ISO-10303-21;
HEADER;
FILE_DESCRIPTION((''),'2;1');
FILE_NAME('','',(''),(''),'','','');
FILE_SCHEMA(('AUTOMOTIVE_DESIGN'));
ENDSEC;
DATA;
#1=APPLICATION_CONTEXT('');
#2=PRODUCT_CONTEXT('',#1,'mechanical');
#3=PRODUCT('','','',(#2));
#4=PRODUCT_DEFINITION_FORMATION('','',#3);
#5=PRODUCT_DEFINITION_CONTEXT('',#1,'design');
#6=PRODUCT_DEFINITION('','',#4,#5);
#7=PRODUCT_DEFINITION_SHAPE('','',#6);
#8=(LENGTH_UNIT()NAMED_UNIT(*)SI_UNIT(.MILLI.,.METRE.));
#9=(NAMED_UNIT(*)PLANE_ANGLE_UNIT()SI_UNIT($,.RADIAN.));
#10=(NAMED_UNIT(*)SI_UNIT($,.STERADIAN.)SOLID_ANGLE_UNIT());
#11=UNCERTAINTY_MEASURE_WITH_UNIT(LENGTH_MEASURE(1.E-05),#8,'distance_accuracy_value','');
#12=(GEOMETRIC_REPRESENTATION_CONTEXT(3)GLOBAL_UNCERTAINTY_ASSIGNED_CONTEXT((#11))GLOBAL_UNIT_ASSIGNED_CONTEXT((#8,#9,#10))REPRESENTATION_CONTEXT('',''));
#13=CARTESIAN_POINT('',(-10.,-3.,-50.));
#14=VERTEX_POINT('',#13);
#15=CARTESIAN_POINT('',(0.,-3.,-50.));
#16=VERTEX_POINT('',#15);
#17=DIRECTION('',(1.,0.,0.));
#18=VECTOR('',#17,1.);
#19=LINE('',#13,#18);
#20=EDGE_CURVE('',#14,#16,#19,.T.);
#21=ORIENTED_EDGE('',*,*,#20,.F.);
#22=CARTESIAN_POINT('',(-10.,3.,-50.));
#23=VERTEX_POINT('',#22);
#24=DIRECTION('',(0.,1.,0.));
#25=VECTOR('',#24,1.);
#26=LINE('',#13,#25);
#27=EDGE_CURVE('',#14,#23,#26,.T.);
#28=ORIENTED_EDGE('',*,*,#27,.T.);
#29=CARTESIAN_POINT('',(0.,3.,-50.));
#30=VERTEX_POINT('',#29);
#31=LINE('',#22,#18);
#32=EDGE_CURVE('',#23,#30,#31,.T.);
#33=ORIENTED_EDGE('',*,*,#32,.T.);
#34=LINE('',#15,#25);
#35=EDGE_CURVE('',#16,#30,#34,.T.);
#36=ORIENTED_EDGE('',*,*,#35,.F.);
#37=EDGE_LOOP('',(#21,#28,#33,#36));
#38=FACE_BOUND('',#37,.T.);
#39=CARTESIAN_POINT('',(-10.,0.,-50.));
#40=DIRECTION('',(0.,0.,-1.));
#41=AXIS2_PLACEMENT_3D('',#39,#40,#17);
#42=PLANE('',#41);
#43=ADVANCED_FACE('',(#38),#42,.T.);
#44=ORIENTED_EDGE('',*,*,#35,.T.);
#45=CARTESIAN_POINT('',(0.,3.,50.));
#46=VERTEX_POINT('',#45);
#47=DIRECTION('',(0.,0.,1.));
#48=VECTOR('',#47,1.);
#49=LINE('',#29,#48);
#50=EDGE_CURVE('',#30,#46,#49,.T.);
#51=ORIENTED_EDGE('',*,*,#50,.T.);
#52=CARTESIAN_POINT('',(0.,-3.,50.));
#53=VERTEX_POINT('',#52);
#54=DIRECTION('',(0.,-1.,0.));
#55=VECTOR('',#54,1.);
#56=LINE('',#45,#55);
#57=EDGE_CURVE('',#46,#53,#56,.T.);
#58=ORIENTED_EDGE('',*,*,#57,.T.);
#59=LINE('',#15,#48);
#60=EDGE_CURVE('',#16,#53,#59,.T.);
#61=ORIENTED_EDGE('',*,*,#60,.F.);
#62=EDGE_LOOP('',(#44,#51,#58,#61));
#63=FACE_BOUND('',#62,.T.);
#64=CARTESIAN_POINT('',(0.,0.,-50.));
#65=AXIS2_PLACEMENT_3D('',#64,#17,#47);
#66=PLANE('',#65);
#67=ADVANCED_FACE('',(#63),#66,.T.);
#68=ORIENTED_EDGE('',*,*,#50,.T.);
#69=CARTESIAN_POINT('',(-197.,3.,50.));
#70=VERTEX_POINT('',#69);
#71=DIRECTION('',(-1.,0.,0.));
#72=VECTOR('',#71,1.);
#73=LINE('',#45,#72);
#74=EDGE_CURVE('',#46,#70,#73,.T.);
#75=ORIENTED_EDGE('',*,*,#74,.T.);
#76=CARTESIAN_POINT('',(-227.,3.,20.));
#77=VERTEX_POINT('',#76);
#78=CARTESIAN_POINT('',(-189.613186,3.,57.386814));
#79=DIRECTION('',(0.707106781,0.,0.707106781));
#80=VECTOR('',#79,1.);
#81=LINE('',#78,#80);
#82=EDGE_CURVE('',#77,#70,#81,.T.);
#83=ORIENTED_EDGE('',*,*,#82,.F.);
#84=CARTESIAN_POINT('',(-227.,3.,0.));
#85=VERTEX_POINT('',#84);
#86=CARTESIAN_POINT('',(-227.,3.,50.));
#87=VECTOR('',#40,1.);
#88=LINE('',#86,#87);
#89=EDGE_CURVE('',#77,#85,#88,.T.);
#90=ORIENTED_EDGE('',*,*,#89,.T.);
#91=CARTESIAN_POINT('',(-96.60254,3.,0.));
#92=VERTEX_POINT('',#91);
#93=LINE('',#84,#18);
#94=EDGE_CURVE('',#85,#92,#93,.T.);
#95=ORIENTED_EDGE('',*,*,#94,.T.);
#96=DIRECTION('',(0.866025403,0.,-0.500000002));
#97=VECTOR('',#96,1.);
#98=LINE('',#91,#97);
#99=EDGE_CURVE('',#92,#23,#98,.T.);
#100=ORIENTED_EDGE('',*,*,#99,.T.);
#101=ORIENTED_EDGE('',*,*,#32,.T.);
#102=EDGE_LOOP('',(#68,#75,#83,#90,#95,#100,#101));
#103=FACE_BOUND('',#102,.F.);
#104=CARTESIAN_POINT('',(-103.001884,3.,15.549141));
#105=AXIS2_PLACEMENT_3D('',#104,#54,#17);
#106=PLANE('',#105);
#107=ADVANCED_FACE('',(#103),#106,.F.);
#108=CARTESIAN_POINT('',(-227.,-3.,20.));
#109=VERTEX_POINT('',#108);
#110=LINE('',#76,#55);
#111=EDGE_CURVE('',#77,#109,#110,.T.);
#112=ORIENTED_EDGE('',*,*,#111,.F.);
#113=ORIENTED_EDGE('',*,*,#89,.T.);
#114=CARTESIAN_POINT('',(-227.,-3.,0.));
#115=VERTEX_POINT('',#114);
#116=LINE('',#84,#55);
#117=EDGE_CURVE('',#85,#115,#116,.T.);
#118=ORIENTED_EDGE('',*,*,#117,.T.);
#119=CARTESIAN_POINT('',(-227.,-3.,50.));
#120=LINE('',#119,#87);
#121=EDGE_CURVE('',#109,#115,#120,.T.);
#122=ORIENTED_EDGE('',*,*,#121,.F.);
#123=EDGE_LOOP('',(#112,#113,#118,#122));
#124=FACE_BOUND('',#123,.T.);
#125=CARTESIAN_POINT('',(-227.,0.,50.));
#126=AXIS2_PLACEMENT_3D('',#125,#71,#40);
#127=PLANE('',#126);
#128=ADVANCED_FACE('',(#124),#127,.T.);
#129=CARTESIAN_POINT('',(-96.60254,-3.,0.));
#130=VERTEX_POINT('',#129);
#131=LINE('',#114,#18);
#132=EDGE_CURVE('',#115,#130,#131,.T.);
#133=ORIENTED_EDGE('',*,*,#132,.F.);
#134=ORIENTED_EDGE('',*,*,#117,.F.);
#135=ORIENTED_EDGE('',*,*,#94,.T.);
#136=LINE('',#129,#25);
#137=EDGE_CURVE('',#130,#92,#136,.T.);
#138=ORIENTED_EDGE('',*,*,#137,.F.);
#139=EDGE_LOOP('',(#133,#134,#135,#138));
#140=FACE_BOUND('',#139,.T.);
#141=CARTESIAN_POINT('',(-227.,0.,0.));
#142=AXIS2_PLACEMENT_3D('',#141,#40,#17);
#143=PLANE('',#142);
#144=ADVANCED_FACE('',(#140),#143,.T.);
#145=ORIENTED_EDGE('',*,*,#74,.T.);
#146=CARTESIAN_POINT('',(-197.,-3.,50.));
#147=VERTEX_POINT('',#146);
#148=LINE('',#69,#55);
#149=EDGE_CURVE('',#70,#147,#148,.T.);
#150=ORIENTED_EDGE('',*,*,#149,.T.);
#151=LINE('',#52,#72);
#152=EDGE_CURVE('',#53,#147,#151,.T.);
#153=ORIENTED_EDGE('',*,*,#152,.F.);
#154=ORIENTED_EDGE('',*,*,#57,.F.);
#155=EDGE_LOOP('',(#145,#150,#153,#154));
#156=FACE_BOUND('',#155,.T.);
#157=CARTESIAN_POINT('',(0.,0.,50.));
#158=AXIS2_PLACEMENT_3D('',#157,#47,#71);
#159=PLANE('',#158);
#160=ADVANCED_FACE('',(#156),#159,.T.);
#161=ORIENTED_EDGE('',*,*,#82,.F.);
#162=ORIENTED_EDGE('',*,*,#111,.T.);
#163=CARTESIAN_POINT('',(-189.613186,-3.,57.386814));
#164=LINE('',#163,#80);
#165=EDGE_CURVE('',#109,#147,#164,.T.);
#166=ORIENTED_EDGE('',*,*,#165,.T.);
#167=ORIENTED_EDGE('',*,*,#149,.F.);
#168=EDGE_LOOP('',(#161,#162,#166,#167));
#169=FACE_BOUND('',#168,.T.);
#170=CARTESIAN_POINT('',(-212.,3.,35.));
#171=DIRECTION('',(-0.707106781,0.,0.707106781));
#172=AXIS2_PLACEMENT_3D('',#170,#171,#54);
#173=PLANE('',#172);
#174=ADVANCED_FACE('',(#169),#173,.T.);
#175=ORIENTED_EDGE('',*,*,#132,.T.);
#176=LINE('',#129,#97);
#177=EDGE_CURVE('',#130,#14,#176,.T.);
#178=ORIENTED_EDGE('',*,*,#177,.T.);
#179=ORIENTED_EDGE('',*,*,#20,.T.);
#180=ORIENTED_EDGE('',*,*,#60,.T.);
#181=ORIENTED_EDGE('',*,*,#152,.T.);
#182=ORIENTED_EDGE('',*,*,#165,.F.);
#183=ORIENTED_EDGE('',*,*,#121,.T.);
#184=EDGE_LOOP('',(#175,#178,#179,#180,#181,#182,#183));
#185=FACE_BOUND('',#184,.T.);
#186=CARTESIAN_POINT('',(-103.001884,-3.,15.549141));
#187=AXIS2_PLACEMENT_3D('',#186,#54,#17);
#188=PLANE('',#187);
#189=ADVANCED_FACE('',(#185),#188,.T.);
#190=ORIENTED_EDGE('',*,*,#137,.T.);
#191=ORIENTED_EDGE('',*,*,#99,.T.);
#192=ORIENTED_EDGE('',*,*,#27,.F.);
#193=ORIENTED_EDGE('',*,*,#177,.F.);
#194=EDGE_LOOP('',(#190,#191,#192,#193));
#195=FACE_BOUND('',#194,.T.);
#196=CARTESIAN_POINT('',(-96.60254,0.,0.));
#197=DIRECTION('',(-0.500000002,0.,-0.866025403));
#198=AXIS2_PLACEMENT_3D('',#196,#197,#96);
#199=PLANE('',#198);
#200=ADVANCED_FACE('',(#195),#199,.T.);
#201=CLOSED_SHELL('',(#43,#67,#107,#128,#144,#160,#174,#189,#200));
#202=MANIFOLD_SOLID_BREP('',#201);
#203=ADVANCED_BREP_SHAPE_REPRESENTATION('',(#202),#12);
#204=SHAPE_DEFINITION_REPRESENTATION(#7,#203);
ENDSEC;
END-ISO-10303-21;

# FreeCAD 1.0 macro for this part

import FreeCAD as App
import Part
import Sketcher
from FreeCAD import Vector
Q = App.Units.Quantity


def edges_at(feature, points):
    """Names of the edges that pass closest to the given points."""
    edges = feature.Shape.Edges
    near = lambda p: min(range(len(edges)), key=lambda i: edges[i].distToShape(Part.Vertex(*p))[0])
    return sorted({f"Edge{near(p) + 1}" for p in points})


def add_polygon(sketch, points):
    """Adds a closed chain of lines whose ends are joined by coincident constraints."""
    first, n = sketch.GeometryCount, len(points)
    for a, b in zip(points, points[1:] + points[:1]):
        sketch.addGeometry(Part.LineSegment(App.Vector(*a, 0), App.Vector(*b, 0)), False)
    for i in range(n):
        sketch.addConstraint(Sketcher.Constraint("Coincident", first + i, 2, first + (i + 1) % n, 1))

doc = App.newDocument("Part")
body = doc.addObject("PartDesign::Body", "Body")

# Sketch on XZ plane
sketch1 = doc.addObject("Sketcher::SketchObject", "Sketch")
body.addObject(sketch1)
sketch1.AttachmentSupport = (doc.XZ_Plane, [""])
sketch1.MapMode = "FlatFace"
add_polygon(sketch1, [(0, -50), (0, 50), (-227, 50), (-227, 0), (-97, 0), (-10, -50)])  # lines 0-5
sketch1.addConstraint([
    Sketcher.Constraint("Vertical", 0),
    Sketcher.Constraint("Horizontal", 1),
    Sketcher.Constraint("Vertical", 2),
    Sketcher.Constraint("Horizontal", 3),
    Sketcher.Constraint("Horizontal", 5),
    Sketcher.Constraint("Symmetric", 0, 2, 5, 2, -1, 1),
    Sketcher.Constraint("PointOnObject", 2, 2, -1),
    Sketcher.Constraint("DistanceX", 1, 2, 1, 1, 227.0),
    Sketcher.Constraint("DistanceX", 5, 1, 5, 2, 10.0),
    Sketcher.Constraint("DistanceY", 0, 1, 0, 2, 100.0),
    Sketcher.Constraint("Angle", 4, Q("-30 deg")),
])
pad1 = doc.addObject("PartDesign::Pad", "Pad")
body.addObject(pad1)
pad1.Profile = sketch1
pad1.Length = 6
pad1.Midplane = True
doc.recompute()

chamfer = doc.addObject("PartDesign::Chamfer", "Chamfer")
body.addObject(chamfer)
chamfer.Base = (pad1, edges_at(pad1, [(-227, 0, 50)]))
chamfer.Size = 30

doc.recompute()
